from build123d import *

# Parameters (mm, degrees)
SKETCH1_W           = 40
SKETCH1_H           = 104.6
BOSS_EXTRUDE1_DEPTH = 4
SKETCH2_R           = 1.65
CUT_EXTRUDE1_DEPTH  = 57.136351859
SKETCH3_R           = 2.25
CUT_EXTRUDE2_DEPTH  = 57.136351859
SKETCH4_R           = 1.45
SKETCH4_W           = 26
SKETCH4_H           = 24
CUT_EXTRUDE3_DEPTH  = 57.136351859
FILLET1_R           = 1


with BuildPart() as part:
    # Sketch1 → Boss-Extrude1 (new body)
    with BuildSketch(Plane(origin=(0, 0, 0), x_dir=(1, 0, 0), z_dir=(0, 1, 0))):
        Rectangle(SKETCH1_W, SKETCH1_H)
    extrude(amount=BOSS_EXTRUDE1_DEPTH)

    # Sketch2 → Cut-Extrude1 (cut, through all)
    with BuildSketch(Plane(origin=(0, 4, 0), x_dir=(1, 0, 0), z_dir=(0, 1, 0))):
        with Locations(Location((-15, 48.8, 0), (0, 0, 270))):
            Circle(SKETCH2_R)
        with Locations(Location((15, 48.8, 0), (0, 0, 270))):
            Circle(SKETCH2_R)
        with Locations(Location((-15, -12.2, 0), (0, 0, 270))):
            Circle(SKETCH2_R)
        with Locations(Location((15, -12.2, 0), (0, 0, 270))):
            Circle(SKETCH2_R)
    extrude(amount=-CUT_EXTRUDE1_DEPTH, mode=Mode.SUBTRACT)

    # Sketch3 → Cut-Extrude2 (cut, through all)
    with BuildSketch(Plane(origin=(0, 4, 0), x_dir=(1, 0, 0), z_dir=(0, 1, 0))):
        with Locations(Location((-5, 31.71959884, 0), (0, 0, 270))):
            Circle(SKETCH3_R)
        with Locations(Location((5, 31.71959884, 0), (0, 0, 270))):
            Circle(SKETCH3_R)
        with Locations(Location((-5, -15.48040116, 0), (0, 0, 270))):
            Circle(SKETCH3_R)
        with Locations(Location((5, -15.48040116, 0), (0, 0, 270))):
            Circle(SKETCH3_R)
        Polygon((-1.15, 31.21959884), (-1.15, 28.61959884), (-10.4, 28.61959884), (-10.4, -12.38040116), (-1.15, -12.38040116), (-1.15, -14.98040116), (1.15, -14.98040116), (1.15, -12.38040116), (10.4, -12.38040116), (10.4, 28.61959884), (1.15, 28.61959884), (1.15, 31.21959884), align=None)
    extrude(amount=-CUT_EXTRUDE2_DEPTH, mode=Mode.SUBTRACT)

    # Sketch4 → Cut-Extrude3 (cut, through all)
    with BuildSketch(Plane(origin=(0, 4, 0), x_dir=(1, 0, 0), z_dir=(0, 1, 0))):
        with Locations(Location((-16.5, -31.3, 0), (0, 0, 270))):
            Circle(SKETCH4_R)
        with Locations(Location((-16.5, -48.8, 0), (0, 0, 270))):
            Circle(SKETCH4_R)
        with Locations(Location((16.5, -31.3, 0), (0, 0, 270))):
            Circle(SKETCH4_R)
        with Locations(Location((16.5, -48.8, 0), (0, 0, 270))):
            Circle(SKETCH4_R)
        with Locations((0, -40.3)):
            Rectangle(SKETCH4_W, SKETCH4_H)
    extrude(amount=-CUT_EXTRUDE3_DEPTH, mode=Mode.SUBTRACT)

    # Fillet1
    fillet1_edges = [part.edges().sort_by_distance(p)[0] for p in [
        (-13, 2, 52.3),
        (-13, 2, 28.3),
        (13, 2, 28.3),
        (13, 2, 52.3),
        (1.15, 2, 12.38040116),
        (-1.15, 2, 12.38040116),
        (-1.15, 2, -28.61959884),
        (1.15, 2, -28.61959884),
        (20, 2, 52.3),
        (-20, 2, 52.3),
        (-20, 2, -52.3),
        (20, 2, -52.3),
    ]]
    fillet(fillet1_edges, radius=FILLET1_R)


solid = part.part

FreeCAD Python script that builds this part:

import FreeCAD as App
import Part
import Sketcher
from FreeCAD import Vector
Q = App.Units.Quantity


def edges_at(feature, points):
    """Names of the edges that pass closest to the given points."""
    edges = feature.Shape.Edges
    near = lambda p: min(range(len(edges)), key=lambda i: edges[i].distToShape(Part.Vertex(*p))[0])
    return sorted({f"Edge{near(p) + 1}" for p in points})

doc = App.newDocument("Part")
body = doc.addObject("PartDesign::Body", "Body")

# Sketch on XZ plane
sketch1 = body.newObject("Sketcher::SketchObject", "Sketch")
sketch1.AttachmentSupport = (doc.getObject("XZ_Plane"), [""])
sketch1.MapMode = "FlatFace"
sketch1.addGeometry(Part.LineSegment(Vector(-20, -52.3, 0), Vector(-20, 52.3, 0)), False)
sketch1.addGeometry(Part.LineSegment(Vector(-20, 52.3, 0), Vector(20, 52.3, 0)), False)
sketch1.addGeometry(Part.LineSegment(Vector(20, 52.3, 0), Vector(20, -52.3, 0)), False)
sketch1.addGeometry(Part.LineSegment(Vector(20, -52.3, 0), Vector(-20, -52.3, 0)), False)
sketch1.addConstraint(Sketcher.Constraint("Coincident", 0, 2, 1, 1))
sketch1.addConstraint(Sketcher.Constraint("Coincident", 1, 2, 2, 1))
sketch1.addConstraint(Sketcher.Constraint("Coincident", 2, 2, 3, 1))
sketch1.addConstraint(Sketcher.Constraint("Coincident", 3, 2, 0, 1))
sketch1.addConstraint(Sketcher.Constraint("Vertical", 0))
sketch1.addConstraint(Sketcher.Constraint("Horizontal", 1))
sketch1.addConstraint(Sketcher.Constraint("Vertical", 2))
sketch1.addConstraint(Sketcher.Constraint("Horizontal", 3))
sketch1.addConstraint(Sketcher.Constraint("Symmetric", 0, 2, 2, 2, -1, 1))
sketch1.addConstraint(Sketcher.Constraint("DistanceX", 1, 1, 1, 2, Q("40 mm")))
sketch1.addConstraint(Sketcher.Constraint("DistanceY", 0, 1, 0, 2, Q("104.6 mm")))
pad1 = body.newObject("PartDesign::Pad", "Pad")
pad1.Profile = sketch1
pad1.Length = 4
pad1.Reversed = True

# Sketch on XZ plane
sketch2 = body.newObject("Sketcher::SketchObject", "Sketch001")
sketch2.AttachmentSupport = (doc.getObject("XZ_Plane"), [""])
sketch2.MapMode = "FlatFace"
sketch2.AttachmentOffset = App.Placement(Vector(0, 0, -4), App.Rotation())
sketch2.addGeometry(Part.Circle(Vector(-15, -48.8, 0), Vector(0, 0, 1), 1.65), False)
sketch2.addGeometry(Part.Circle(Vector(15, -48.8, 0), Vector(0, 0, 1), 1.65), False)
sketch2.addGeometry(Part.Circle(Vector(-15, 12.2, 0), Vector(0, 0, 1), 1.65), False)
sketch2.addGeometry(Part.Circle(Vector(15, 12.2, 0), Vector(0, 0, 1), 1.65), False)
sketch2.addConstraint(Sketcher.Constraint("Equal", 0, 1))
sketch2.addConstraint(Sketcher.Constraint("Equal", 1, 2))
sketch2.addConstraint(Sketcher.Constraint("Equal", 2, 3))
sketch2.addConstraint(Sketcher.Constraint("Symmetric", 0, 3, 1, 3, -2))
sketch2.addConstraint(Sketcher.Constraint("Symmetric", 2, 3, 3, 3, -2))
sketch2.addConstraint(Sketcher.Constraint("Vertical", 0, 3, 2, 3))
sketch2.addConstraint(Sketcher.Constraint("Diameter", 0, Q("3.3 mm")))
sketch2.addConstraint(Sketcher.Constraint("DistanceX", 0, 3, -1, 1, Q("15 mm")))
sketch2.addConstraint(Sketcher.Constraint("DistanceY", 0, 3, 2, 3, Q("61 mm")))
sketch2.addConstraint(Sketcher.Constraint("DistanceY", 0, 3, -1, 1, Q("48.8 mm")))
pocket1 = body.newObject("PartDesign::Pocket", "Pocket")
pocket1.Profile = sketch2
pocket1.Type = "ThroughAll"
pocket1.Reversed = True

# Sketch on XZ plane
sketch3 = body.newObject("Sketcher::SketchObject", "Sketch002")
sketch3.AttachmentSupport = (doc.getObject("XZ_Plane"), [""])
sketch3.MapMode = "FlatFace"
sketch3.AttachmentOffset = App.Placement(Vector(0, 0, -4), App.Rotation())
sketch3.addGeometry(Part.Circle(Vector(-5, -31.719599, 0), Vector(0, 0, 1), 2.25), False)
sketch3.addGeometry(Part.Circle(Vector(5, -31.719599, 0), Vector(0, 0, 1), 2.25), False)
sketch3.addGeometry(Part.Circle(Vector(-5, 15.480401, 0), Vector(0, 0, 1), 2.25), False)
sketch3.addGeometry(Part.Circle(Vector(5, 15.480401, 0), Vector(0, 0, 1), 2.25), False)
sketch3.addGeometry(Part.LineSegment(Vector(-1.15, -31.219599, 0), Vector(-1.15, -28.619599, 0)), False)
sketch3.addGeometry(Part.LineSegment(Vector(-1.15, -28.619599, 0), Vector(-10.4, -28.619599, 0)), False)
sketch3.addGeometry(Part.LineSegment(Vector(-10.4, -28.619599, 0), Vector(-10.4, 12.380401, 0)), False)
sketch3.addGeometry(Part.LineSegment(Vector(-10.4, 12.380401, 0), Vector(-1.15, 12.380401, 0)), False)
sketch3.addGeometry(Part.LineSegment(Vector(-1.15, 12.380401, 0), Vector(-1.15, 14.980401, 0)), False)
sketch3.addGeometry(Part.LineSegment(Vector(-1.15, 14.980401, 0), Vector(1.15, 14.980401, 0)), False)
sketch3.addGeometry(Part.LineSegment(Vector(1.15, 14.980401, 0), Vector(1.15, 12.380401, 0)), False)
sketch3.addGeometry(Part.LineSegment(Vector(1.15, 12.380401, 0), Vector(10.4, 12.380401, 0)), False)
sketch3.addGeometry(Part.LineSegment(Vector(10.4, 12.380401, 0), Vector(10.4, -28.619599, 0)), False)
sketch3.addGeometry(Part.LineSegment(Vector(10.4, -28.619599, 0), Vector(1.15, -28.619599, 0)), False)
sketch3.addGeometry(Part.LineSegment(Vector(1.15, -28.619599, 0), Vector(1.15, -31.219599, 0)), False)
sketch3.addGeometry(Part.LineSegment(Vector(1.15, -31.219599, 0), Vector(-1.15, -31.219599, 0)), False)
sketch3.addConstraint(Sketcher.Constraint("Coincident", 4, 2, 5, 1))
sketch3.addConstraint(Sketcher.Constraint("Coincident", 5, 2, 6, 1))
sketch3.addConstraint(Sketcher.Constraint("Coincident", 6, 2, 7, 1))
sketch3.addConstraint(Sketcher.Constraint("Coincident", 7, 2, 8, 1))
sketch3.addConstraint(Sketcher.Constraint("Coincident", 8, 2, 9, 1))
sketch3.addConstraint(Sketcher.Constraint("Coincident", 9, 2, 10, 1))
sketch3.addConstraint(Sketcher.Constraint("Coincident", 10, 2, 11, 1))
sketch3.addConstraint(Sketcher.Constraint("Coincident", 11, 2, 12, 1))
sketch3.addConstraint(Sketcher.Constraint("Coincident", 12, 2, 13, 1))
sketch3.addConstraint(Sketcher.Constraint("Coincident", 13, 2, 14, 1))
sketch3.addConstraint(Sketcher.Constraint("Coincident", 14, 2, 15, 1))
sketch3.addConstraint(Sketcher.Constraint("Coincident", 15, 2, 4, 1))
sketch3.addConstraint(Sketcher.Constraint("Vertical", 4))
sketch3.addConstraint(Sketcher.Constraint("Horizontal", 5))
sketch3.addConstraint(Sketcher.Constraint("Vertical", 6))
sketch3.addConstraint(Sketcher.Constraint("Horizontal", 7))
sketch3.addConstraint(Sketcher.Constraint("Vertical", 8))
sketch3.addConstraint(Sketcher.Constraint("Horizontal", 9))
sketch3.addConstraint(Sketcher.Constraint("Vertical", 10))
sketch3.addConstraint(Sketcher.Constraint("Horizontal", 11))
sketch3.addConstraint(Sketcher.Constraint("Vertical", 12))
sketch3.addConstraint(Sketcher.Constraint("Horizontal", 13))
sketch3.addConstraint(Sketcher.Constraint("Vertical", 14))
sketch3.addConstraint(Sketcher.Constraint("Horizontal", 15))
sketch3.addConstraint(Sketcher.Constraint("Equal", 0, 1))
sketch3.addConstraint(Sketcher.Constraint("Equal", 1, 2))
sketch3.addConstraint(Sketcher.Constraint("Equal", 2, 3))
sketch3.addConstraint(Sketcher.Constraint("Symmetric", 0, 3, 1, 3, -2))
sketch3.addConstraint(Sketcher.Constraint("Symmetric", 2, 3, 3, 3, -2))
sketch3.addConstraint(Sketcher.Constraint("Symmetric", 7, 2, 10, 2, -2))
sketch3.addConstraint(Sketcher.Constraint("Symmetric", 5, 2, 12, 2, -2))
sketch3.addConstraint(Sketcher.Constraint("Vertical", 0, 3, 2, 3))
sketch3.addConstraint(Sketcher.Constraint("Vertical", 4, 2, 7, 2))
sketch3.addConstraint(Sketcher.Constraint("Vertical", 10, 2, 13, 2))
sketch3.addConstraint(Sketcher.Constraint("Equal", 4, 8))
sketch3.addConstraint(Sketcher.Constraint("Diameter", 0, Q("4.5 mm")))
sketch3.addConstraint(Sketcher.Constraint("DistanceY", 6, 1, 6, 2, Q("41 mm")))
sketch3.addConstraint(Sketcher.Constraint("DistanceX", 9, 1, 9, 2, Q("2.3 mm")))
sketch3.addConstraint(Sketcher.Constraint("DistanceY", 4, 1, 4, 2, Q("2.6 mm")))
sketch3.addConstraint(Sketcher.Constraint("DistanceX", 0, 3, -1, 1, Q("5 mm")))
sketch3.addConstraint(Sketcher.Constraint("DistanceX", 5, 2, 5, 1, Q("9.25 mm")))
sketch3.addConstraint(Sketcher.Constraint("DistanceY", 0, 3, 2, 3, Q("47.2 mm")))
sketch3.addConstraint(Sketcher.Constraint("DistanceY", 0, 3, 4, 2, Q("3.1 mm")))
sketch3.addConstraint(Sketcher.Constraint("DistanceY", 0, 3, -1, 1, Q("31.719599 mm")))
pocket2 = body.newObject("PartDesign::Pocket", "Pocket001")
pocket2.Profile = sketch3
pocket2.Type = "ThroughAll"
pocket2.Reversed = True

# Sketch on XZ plane
sketch4 = body.newObject("Sketcher::SketchObject", "Sketch003")
sketch4.AttachmentSupport = (doc.getObject("XZ_Plane"), [""])
sketch4.MapMode = "FlatFace"
sketch4.AttachmentOffset = App.Placement(Vector(0, 0, -4), App.Rotation())
sketch4.addGeometry(Part.Circle(Vector(-16.5, 31.3, 0), Vector(0, 0, 1), 1.45), False)
sketch4.addGeometry(Part.Circle(Vector(-16.5, 48.8, 0), Vector(0, 0, 1), 1.45), False)
sketch4.addGeometry(Part.Circle(Vector(16.5, 31.3, 0), Vector(0, 0, 1), 1.45), False)
sketch4.addGeometry(Part.Circle(Vector(16.5, 48.8, 0), Vector(0, 0, 1), 1.45), False)
sketch4.addGeometry(Part.LineSegment(Vector(-13, 28.3, 0), Vector(-13, 52.3, 0)), False)
sketch4.addGeometry(Part.LineSegment(Vector(-13, 52.3, 0), Vector(13, 52.3, 0)), False)
sketch4.addGeometry(Part.LineSegment(Vector(13, 52.3, 0), Vector(13, 28.3, 0)), False)
sketch4.addGeometry(Part.LineSegment(Vector(13, 28.3, 0), Vector(-13, 28.3, 0)), False)
sketch4.addConstraint(Sketcher.Constraint("Coincident", 4, 2, 5, 1))
sketch4.addConstraint(Sketcher.Constraint("Coincident", 5, 2, 6, 1))
sketch4.addConstraint(Sketcher.Constraint("Coincident", 6, 2, 7, 1))
sketch4.addConstraint(Sketcher.Constraint("Coincident", 7, 2, 4, 1))
sketch4.addConstraint(Sketcher.Constraint("Vertical", 4))
sketch4.addConstraint(Sketcher.Constraint("Horizontal", 5))
sketch4.addConstraint(Sketcher.Constraint("Vertical", 6))
sketch4.addConstraint(Sketcher.Constraint("Horizontal", 7))
sketch4.addConstraint(Sketcher.Constraint("Equal", 0, 1))
sketch4.addConstraint(Sketcher.Constraint("Equal", 1, 2))
sketch4.addConstraint(Sketcher.Constraint("Equal", 2, 3))
sketch4.addConstraint(Sketcher.Constraint("Symmetric", 0, 3, 2, 3, -2))
sketch4.addConstraint(Sketcher.Constraint("Symmetric", 1, 3, 3, 3, -2))
sketch4.addConstraint(Sketcher.Constraint("Vertical", 0, 3, 1, 3))
sketch4.addConstraint(Sketcher.Constraint("Diameter", 0, Q("2.9 mm")))
sketch4.addConstraint(Sketcher.Constraint("DistanceX", 5, 1, 5, 2, Q("26 mm")))
sketch4.addConstraint(Sketcher.Constraint("DistanceY", 4, 1, 4, 2, Q("24 mm")))
sketch4.addConstraint(Sketcher.Constraint("DistanceX", 4, 2, -1, 1, Q("13 mm")))
sketch4.addConstraint(Sketcher.Constraint("DistanceX", 0, 3, 2, 3, Q("33 mm")))
sketch4.addConstraint(Sketcher.Constraint("DistanceY", 0, 3, 4, 2, Q("21 mm")))
sketch4.addConstraint(Sketcher.Constraint("DistanceY", -1, 1, 0, 3, Q("31.3 mm")))
sketch4.addConstraint(Sketcher.Constraint("DistanceY", -1, 1, 1, 3, Q("48.8 mm")))
pocket3 = body.newObject("PartDesign::Pocket", "Pocket002")
pocket3.Profile = sketch4
pocket3.Type = "ThroughAll"
pocket3.Reversed = True
doc.recompute()

fillet = body.newObject("PartDesign::Fillet", "Fillet")
fillet.Base = (pocket3, edges_at(pocket3, [
    (-13, 2, 52.3),
    (-13, 2, 28.3),
    (13, 2, 28.3),
    (13, 2, 52.3),
    (1.15, 2, 12.38),
    (-1.15, 2, 12.38),
    (-1.15, 2, -28.62),
    (1.15, 2, -28.62),
    (20, 2, 52.3),
    (-20, 2, 52.3),
    (-20, 2, -52.3),
    (20, 2, -52.3),
]))
fillet.Radius = 1

doc.recompute()
